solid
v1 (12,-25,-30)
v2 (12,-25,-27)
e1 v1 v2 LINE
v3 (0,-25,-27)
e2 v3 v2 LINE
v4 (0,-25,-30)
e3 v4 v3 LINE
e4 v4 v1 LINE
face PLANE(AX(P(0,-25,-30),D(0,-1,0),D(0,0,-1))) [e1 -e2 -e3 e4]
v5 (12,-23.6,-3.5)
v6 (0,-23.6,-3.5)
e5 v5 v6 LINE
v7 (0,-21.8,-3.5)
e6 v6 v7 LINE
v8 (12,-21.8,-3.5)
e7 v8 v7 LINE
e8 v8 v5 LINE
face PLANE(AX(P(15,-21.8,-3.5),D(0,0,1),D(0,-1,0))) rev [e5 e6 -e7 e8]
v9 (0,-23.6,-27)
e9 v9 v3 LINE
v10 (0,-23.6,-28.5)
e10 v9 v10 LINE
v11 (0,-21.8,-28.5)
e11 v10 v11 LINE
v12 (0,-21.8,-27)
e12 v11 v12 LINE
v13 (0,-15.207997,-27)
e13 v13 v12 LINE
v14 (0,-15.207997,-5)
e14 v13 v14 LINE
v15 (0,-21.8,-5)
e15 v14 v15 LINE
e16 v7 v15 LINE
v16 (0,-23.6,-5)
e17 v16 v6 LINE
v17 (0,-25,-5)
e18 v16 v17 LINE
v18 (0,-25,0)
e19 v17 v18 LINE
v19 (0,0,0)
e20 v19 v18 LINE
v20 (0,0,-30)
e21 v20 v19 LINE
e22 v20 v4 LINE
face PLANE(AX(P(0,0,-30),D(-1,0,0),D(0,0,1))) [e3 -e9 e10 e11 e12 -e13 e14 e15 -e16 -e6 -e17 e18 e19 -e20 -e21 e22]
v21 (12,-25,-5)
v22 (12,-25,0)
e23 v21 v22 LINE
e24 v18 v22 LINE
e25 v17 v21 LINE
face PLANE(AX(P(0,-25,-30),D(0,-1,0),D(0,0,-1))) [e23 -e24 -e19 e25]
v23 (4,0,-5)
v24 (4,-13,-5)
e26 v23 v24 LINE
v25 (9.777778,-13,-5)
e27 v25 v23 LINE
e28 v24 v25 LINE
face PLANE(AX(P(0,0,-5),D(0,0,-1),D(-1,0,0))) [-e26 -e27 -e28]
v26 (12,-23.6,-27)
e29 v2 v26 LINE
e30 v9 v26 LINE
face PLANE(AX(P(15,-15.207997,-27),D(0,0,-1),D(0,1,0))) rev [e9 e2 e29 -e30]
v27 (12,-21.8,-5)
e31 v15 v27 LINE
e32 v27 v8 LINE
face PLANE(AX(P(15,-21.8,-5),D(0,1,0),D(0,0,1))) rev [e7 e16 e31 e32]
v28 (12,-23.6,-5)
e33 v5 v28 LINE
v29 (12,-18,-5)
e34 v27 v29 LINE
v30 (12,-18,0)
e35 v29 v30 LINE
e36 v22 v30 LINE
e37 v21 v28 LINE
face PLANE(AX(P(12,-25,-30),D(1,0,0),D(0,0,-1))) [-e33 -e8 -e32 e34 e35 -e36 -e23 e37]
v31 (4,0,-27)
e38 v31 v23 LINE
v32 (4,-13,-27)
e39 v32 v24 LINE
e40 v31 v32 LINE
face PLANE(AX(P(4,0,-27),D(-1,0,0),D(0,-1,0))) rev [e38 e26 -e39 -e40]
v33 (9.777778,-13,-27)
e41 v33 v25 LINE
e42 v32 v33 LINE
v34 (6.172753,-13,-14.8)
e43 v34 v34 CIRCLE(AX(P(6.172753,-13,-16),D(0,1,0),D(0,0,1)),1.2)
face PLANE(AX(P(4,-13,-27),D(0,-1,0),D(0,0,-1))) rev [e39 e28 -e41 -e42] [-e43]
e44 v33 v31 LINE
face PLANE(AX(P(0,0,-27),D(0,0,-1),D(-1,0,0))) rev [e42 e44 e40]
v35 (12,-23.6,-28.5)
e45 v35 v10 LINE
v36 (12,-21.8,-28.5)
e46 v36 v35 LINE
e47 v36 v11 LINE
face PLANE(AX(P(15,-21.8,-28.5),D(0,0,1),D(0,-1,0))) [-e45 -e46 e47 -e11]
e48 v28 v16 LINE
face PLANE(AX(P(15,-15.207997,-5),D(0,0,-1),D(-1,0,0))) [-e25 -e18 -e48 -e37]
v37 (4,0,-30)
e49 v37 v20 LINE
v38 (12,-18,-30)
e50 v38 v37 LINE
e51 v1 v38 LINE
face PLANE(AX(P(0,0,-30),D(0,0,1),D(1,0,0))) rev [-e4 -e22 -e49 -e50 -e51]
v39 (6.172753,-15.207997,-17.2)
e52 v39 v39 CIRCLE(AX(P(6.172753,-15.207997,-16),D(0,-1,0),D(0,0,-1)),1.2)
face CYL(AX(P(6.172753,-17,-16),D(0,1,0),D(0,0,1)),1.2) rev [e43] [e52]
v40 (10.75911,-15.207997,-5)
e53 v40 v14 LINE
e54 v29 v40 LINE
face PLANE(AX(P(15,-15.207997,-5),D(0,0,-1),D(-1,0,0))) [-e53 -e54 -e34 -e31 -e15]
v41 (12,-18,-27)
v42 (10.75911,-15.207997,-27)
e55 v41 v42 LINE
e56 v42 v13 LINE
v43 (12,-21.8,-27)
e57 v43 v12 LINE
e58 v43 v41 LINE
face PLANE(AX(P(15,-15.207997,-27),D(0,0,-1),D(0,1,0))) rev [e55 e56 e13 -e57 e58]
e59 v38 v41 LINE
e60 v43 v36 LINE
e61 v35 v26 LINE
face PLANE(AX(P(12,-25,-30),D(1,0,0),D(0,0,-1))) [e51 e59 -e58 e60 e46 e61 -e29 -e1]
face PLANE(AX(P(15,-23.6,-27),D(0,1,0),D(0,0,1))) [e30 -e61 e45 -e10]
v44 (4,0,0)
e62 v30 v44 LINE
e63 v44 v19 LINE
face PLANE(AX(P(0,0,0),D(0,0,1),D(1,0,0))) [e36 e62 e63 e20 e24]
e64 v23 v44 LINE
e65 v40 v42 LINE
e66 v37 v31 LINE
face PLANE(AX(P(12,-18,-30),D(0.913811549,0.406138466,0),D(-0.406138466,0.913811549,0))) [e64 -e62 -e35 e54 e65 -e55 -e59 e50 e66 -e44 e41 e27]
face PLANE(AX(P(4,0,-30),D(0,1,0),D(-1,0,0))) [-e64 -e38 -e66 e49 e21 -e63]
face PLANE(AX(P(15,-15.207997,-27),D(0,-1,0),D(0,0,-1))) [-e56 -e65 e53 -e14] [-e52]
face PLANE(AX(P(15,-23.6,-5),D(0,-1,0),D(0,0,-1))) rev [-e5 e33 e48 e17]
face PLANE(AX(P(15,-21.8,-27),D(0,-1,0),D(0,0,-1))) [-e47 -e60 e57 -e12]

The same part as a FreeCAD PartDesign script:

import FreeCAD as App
import Part
import Sketcher

V = App.Vector

doc = App.newDocument("Part")
body = doc.addObject("PartDesign::Body", "Body")

sketch1 = doc.addObject("Sketcher::SketchObject", "Sketch")
body.addObject(sketch1)
sketch1.AttachmentSupport = (doc.XY_Plane, [""])
sketch1.MapMode = "FlatFace"
sketch1.addGeometry([
    Part.LineSegment(V(0, 0, 0), V(0, -25, 0)),
    Part.LineSegment(V(0, -25, 0), V(12, -25, 0)),
    Part.LineSegment(V(12, -25, 0), V(12, -18, 0)),
    Part.LineSegment(V(12, -18, 0), V(4, 0, 0)),
    Part.LineSegment(V(4, 0, 0), V(0, 0, 0)),
], False)
sketch1.addConstraint([
    Sketcher.Constraint("Coincident", 0, 2, 1, 1),
    Sketcher.Constraint("Coincident", 1, 2, 2, 1),
    Sketcher.Constraint("Coincident", 2, 2, 3, 1),
    Sketcher.Constraint("Coincident", 3, 2, 4, 1),
    Sketcher.Constraint("Coincident", 4, 2, 0, 1),
    Sketcher.Constraint("Vertical", 0),
    Sketcher.Constraint("Horizontal", 1),
    Sketcher.Constraint("Vertical", 2),
    Sketcher.Constraint("Horizontal", 4),
    Sketcher.Constraint("Coincident", 4, 2, -1, 1),
    Sketcher.Constraint("DistanceX", 1, 1, 1, 2, 12.0),
    Sketcher.Constraint("DistanceX", 4, 2, 4, 1, 4.0),
    Sketcher.Constraint("DistanceY", 0, 2, 0, 1, 25.0),
    Sketcher.Constraint("DistanceY", 2, 1, 2, 2, 7.0),
])
pad1 = doc.addObject("PartDesign::Pad", "Pad")
body.addObject(pad1)
pad1.Profile = sketch1
pad1.Length = 30
pad1.Reversed = True

sketch2 = doc.addObject("Sketcher::SketchObject", "Sketch001")
body.addObject(sketch2)
sketch2.AttachmentSupport = (doc.YZ_Plane, [""])
sketch2.MapMode = "FlatFace"
sketch2.addGeometry([
    Part.LineSegment(V(-15.207997, -27, 0), V(-25.207997, -27, 0)),
    Part.LineSegment(V(-25.207997, -27, 0), V(-25.207997, -5, 0)),
    Part.LineSegment(V(-25.207997, -5, 0), V(-15.207997, -5, 0)),
    Part.LineSegment(V(-15.207997, -5, 0), V(-15.207997, -27, 0)),
], False)
sketch2.addConstraint([
    Sketcher.Constraint("Coincident", 0, 2, 1, 1),
    Sketcher.Constraint("Coincident", 1, 2, 2, 1),
    Sketcher.Constraint("Coincident", 2, 2, 3, 1),
    Sketcher.Constraint("Coincident", 3, 2, 0, 1),
    Sketcher.Constraint("Horizontal", 0),
    Sketcher.Constraint("Vertical", 1),
    Sketcher.Constraint("Horizontal", 2),
    Sketcher.Constraint("Vertical", 3),
    Sketcher.Constraint("DistanceX", 0, 2, 0, 1, 10.0),
    Sketcher.Constraint("DistanceY", 1, 1, 1, 2, 22.0),
    Sketcher.Constraint("DistanceY", 0, 2, -1, 1, 27.0),
    Sketcher.Constraint("DistanceX", 0, 2, -1, 1, 25.207997),
])
pocket1 = doc.addObject("PartDesign::Pocket", "Pocket")
body.addObject(pocket1)
pocket1.Profile = sketch2
pocket1.Length = 15
pocket1.Reversed = True

sketch3 = doc.addObject("Sketcher::SketchObject", "Sketch002")
body.addObject(sketch3)
sketch3.AttachmentSupport = (doc.YZ_Plane, [""])
sketch3.MapMode = "FlatFace"
sketch3.addGeometry([
    Part.LineSegment(V(-21.8, -5, 0), V(-23.6, -5, 0)),
    Part.LineSegment(V(-23.6, -5, 0), V(-23.6, -3.5, 0)),
    Part.LineSegment(V(-23.6, -3.5, 0), V(-21.8, -3.5, 0)),
    Part.LineSegment(V(-21.8, -3.5, 0), V(-21.8, -5, 0)),
], False)
sketch3.addConstraint([
    Sketcher.Constraint("Coincident", 0, 2, 1, 1),
    Sketcher.Constraint("Coincident", 1, 2, 2, 1),
    Sketcher.Constraint("Coincident", 2, 2, 3, 1),
    Sketcher.Constraint("Coincident", 3, 2, 0, 1),
    Sketcher.Constraint("Horizontal", 0),
    Sketcher.Constraint("Vertical", 1),
    Sketcher.Constraint("Horizontal", 2),
    Sketcher.Constraint("Vertical", 3),
    Sketcher.Constraint("DistanceX", 0, 2, 0, 1, 1.8),
    Sketcher.Constraint("DistanceY", 1, 1, 1, 2, 1.5),
    Sketcher.Constraint("DistanceY", 0, 2, -1, 1, 5.0),
    Sketcher.Constraint("DistanceX", 0, 2, -1, 1, 23.6),
])
pocket2 = doc.addObject("PartDesign::Pocket", "Pocket001")
body.addObject(pocket2)
pocket2.Profile = sketch3
pocket2.Length = 15
pocket2.Reversed = True
doc.recompute()

datumplane = doc.addObject("PartDesign::Plane", "DatumPlane")
body.addObject(datumplane)
datumplane.AttachmentSupport = (doc.XY_Plane, [""])
datumplane.MapMode = "FlatFace"
datumplane.AttachmentOffset = App.Placement(V(0, 0, -16), App.Rotation())
mirrored = doc.addObject("PartDesign::Mirrored", "Mirrored")
body.addObject(mirrored)
mirrored.Originals = [pocket2]
mirrored.MirrorPlane = (datumplane, [""])
body.Tip = mirrored

sketch4 = doc.addObject("Sketcher::SketchObject", "Sketch003")
body.addObject(sketch4)
sketch4.AttachmentSupport = (doc.XY_Plane, [""])
sketch4.MapMode = "FlatFace"
sketch4.AttachmentOffset = App.Placement(V(0, 0, -16), App.Rotation())
sketch4.addGeometry([
    Part.LineSegment(V(4, 0, 0), V(4, -13, 0)),
    Part.LineSegment(V(4, -13, 0), V(9.777778, -13, 0)),
    Part.LineSegment(V(9.777778, -13, 0), V(4, 0, 0)),
], False)
sketch4.addConstraint([
    Sketcher.Constraint("Coincident", 0, 2, 1, 1),
    Sketcher.Constraint("Coincident", 1, 2, 2, 1),
    Sketcher.Constraint("Coincident", 2, 2, 0, 1),
    Sketcher.Constraint("Vertical", 0),
    Sketcher.Constraint("Horizontal", 1),
    Sketcher.Constraint("PointOnObject", 2, 2, -1),
    Sketcher.Constraint("DistanceY", 0, 2, 0, 1, 13.0),
    Sketcher.Constraint("DistanceX", -1, 1, 0, 2, 4.0),
    Sketcher.Constraint("DistanceX", 1, 1, 1, 2, 5.777778),
])
pocket3 = doc.addObject("PartDesign::Pocket", "Pocket002")
body.addObject(pocket3)
pocket3.Profile = sketch4
pocket3.Length = 22
pocket3.Midplane = True

sketch5 = doc.addObject("Sketcher::SketchObject", "Sketch004")
body.addObject(sketch5)
sketch5.AttachmentSupport = (doc.XZ_Plane, [""])
sketch5.MapMode = "FlatFace"
sketch5.AttachmentOffset = App.Placement(V(0, 0, 13), App.Rotation())
sketch5.addGeometry(Part.Circle(V(6.172753, -16, 0), V(0, 0, 1), 1.2), False)
sketch5.addConstraint([
    Sketcher.Constraint("Diameter", 0, 2.4),
    Sketcher.Constraint("DistanceY", 0, 3, -1, 1, 16.0),
    Sketcher.Constraint("DistanceX", -1, 1, 0, 3, 6.172753),
])
pocket4 = doc.addObject("PartDesign::Pocket", "Pocket003")
body.addObject(pocket4)
pocket4.Profile = sketch5
pocket4.Length = 4
pocket4.Reversed = True

doc.recompute()
